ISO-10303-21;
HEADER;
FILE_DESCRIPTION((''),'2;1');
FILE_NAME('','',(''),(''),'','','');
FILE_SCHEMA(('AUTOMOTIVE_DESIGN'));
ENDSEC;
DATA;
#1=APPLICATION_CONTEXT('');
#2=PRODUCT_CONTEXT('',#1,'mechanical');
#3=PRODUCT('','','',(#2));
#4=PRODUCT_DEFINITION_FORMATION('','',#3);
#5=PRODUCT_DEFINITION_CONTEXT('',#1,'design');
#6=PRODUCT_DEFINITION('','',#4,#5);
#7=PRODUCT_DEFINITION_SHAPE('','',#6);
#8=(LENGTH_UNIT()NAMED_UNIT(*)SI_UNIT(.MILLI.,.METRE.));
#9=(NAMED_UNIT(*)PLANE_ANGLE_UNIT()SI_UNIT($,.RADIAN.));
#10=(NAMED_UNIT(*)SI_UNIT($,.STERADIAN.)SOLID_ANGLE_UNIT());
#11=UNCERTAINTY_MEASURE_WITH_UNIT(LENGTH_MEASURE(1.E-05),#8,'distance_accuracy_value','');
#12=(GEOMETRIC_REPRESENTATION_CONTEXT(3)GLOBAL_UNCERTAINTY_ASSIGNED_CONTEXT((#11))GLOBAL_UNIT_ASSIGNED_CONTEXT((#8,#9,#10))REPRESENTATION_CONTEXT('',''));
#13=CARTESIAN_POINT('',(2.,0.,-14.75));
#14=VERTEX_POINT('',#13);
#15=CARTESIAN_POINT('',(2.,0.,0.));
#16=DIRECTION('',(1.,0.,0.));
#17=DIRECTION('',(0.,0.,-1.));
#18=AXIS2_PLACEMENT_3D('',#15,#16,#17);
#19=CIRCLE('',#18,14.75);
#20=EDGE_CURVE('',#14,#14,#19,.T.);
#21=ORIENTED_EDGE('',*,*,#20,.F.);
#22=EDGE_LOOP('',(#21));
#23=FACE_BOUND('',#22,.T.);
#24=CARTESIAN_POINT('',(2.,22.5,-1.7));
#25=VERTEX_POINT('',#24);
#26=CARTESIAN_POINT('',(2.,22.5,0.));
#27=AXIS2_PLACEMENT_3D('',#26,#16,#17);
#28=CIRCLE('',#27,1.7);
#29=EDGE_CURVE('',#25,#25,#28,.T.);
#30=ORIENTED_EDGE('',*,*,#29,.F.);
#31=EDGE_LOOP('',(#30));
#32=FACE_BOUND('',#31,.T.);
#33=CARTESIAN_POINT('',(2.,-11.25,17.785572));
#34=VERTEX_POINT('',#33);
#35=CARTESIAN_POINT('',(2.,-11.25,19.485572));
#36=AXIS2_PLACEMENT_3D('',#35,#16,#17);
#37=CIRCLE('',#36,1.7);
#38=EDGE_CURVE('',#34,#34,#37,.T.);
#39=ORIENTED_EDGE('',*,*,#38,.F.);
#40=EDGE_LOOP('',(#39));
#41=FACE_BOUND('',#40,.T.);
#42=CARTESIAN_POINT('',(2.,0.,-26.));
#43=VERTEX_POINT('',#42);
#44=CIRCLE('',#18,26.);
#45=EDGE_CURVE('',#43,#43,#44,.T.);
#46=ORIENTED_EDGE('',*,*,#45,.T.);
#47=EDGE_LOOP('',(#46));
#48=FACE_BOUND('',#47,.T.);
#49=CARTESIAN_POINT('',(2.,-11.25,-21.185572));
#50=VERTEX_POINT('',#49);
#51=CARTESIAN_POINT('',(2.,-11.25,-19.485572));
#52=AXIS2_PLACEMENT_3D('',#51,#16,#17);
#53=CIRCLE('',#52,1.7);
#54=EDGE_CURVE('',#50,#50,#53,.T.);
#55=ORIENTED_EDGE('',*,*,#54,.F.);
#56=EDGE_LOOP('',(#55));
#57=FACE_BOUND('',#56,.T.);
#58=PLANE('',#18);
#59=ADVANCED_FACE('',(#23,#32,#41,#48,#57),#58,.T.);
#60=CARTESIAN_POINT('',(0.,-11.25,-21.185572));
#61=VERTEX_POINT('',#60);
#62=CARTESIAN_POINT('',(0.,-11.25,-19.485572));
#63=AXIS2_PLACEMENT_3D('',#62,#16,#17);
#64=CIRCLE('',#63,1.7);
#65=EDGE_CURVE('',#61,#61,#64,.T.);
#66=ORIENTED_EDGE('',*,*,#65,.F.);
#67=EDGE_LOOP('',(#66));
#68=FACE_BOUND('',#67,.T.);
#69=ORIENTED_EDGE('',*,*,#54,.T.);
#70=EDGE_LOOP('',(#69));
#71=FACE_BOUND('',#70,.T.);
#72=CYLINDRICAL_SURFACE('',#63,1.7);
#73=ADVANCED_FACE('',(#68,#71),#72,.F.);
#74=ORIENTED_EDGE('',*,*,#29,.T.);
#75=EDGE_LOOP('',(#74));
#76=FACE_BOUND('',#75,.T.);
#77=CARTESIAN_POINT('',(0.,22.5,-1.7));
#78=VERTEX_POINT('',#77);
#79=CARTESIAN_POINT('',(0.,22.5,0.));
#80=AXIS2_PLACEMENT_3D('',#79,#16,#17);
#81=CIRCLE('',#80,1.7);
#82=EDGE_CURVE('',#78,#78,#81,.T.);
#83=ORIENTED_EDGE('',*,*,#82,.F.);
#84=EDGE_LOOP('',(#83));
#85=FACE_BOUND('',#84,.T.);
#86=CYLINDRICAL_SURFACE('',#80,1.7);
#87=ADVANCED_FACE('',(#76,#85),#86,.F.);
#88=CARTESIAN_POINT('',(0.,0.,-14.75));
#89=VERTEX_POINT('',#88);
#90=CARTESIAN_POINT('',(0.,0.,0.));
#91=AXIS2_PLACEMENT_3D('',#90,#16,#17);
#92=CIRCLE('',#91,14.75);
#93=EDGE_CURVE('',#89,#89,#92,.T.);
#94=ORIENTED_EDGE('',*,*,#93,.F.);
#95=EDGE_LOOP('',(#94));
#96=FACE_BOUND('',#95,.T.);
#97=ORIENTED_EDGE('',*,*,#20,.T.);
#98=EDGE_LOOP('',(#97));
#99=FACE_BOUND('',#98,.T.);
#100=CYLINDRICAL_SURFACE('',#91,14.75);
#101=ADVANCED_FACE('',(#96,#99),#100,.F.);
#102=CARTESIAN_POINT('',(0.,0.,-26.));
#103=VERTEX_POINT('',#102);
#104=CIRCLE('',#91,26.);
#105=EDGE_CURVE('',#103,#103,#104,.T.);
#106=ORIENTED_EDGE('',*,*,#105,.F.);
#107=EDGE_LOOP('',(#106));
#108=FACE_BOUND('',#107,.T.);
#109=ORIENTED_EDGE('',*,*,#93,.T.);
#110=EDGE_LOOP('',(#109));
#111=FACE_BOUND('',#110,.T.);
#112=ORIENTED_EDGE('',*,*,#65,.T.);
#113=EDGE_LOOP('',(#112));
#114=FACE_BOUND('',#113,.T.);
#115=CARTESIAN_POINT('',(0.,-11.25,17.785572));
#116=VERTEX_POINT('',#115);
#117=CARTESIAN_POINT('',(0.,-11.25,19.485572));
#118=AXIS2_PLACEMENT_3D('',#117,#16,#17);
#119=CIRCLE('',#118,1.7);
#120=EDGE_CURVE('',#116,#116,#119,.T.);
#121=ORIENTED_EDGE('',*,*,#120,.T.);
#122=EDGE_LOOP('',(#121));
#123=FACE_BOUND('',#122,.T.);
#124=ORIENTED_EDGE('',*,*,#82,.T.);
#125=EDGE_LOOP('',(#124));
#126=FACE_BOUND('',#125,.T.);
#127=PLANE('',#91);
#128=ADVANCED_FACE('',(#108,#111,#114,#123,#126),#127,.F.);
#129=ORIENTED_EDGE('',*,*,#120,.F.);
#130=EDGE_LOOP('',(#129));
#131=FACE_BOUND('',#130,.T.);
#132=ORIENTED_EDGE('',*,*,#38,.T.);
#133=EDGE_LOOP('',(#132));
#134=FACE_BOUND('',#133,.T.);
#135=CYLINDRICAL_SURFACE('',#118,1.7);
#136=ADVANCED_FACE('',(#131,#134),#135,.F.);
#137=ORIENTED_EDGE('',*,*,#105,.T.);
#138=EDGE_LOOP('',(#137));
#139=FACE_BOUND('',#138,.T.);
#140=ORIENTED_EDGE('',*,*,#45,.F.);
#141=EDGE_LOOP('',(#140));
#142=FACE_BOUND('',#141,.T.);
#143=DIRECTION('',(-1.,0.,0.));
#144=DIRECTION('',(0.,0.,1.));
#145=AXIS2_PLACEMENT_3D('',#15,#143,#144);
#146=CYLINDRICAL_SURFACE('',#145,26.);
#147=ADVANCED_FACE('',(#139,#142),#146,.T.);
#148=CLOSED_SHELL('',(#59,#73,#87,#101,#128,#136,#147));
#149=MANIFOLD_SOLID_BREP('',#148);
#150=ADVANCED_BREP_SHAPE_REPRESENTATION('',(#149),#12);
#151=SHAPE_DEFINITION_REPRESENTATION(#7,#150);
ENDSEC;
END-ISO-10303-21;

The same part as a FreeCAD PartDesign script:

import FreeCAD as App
import Part
import Sketcher
from FreeCAD import Vector
Q = App.Units.Quantity

doc = App.newDocument("Part")
body = doc.addObject("PartDesign::Body", "Body")

# Sketch on YZ plane
sketch1 = doc.addObject("Sketcher::SketchObject", "Sketch")
body.addObject(sketch1)
sketch1.AttachmentSupport = (doc.YZ_Plane, [""])
sketch1.MapMode = "FlatFace"
sketch1.addGeometry(Part.Circle(Vector(0, 0, 0), Vector(0, 0, 1), 26), False)
sketch1.addConstraint([
    Sketcher.Constraint("Coincident", 0, 3, -1, 1),
    Sketcher.Constraint("Diameter", 0, Q("52 mm")),
])
pad1 = doc.addObject("PartDesign::Pad", "Pad")
body.addObject(pad1)
pad1.Profile = sketch1
pad1.Length = 2

# Sketch on YZ plane
sketch2 = doc.addObject("Sketcher::SketchObject", "Sketch001")
body.addObject(sketch2)
sketch2.AttachmentSupport = (doc.YZ_Plane, [""])
sketch2.MapMode = "FlatFace"
sketch2.AttachmentOffset = App.Placement(Vector(0, 0, 2), App.Rotation())
sketch2.addGeometry(Part.Circle(Vector(0, 0, 0), Vector(0, 0, 1), 14.75), False)
sketch2.addConstraint([
    Sketcher.Constraint("Coincident", 0, 3, -1, 1),
    Sketcher.Constraint("Diameter", 0, Q("29.5 mm")),
])
pocket1 = doc.addObject("PartDesign::Pocket", "Pocket")
body.addObject(pocket1)
pocket1.Profile = sketch2
pocket1.Type = "ThroughAll"

# Sketch on YZ plane
sketch3 = doc.addObject("Sketcher::SketchObject", "Sketch002")
body.addObject(sketch3)
sketch3.AttachmentSupport = (doc.YZ_Plane, [""])
sketch3.MapMode = "FlatFace"
sketch3.AttachmentOffset = App.Placement(Vector(0, 0, 2), App.Rotation())
sketch3.addGeometry([
    Part.Circle(Vector(22.5, 0, 0), Vector(0, 0, 1), 1.7),
    Part.Circle(Vector(-11.25, -19.485572, 0), Vector(0, 0, 1), 1.7),
    Part.Circle(Vector(-11.25, 19.485572, 0), Vector(0, 0, 1), 1.7),
], False)
sketch3.addConstraint([
    Sketcher.Constraint("Equal", 0, 1),
    Sketcher.Constraint("Equal", 1, 2),
    Sketcher.Constraint("Symmetric", 1, 3, 2, 3, -1),
    Sketcher.Constraint("PointOnObject", 0, 3, -1),
    Sketcher.Constraint("Diameter", 0, Q("3.4 mm")),
    Sketcher.Constraint("DistanceX", -1, 1, 0, 3, Q("22.5 mm")),
    Sketcher.Constraint("DistanceX", 1, 3, -1, 1, Q("11.25 mm")),
    Sketcher.Constraint("DistanceY", 1, 3, -1, 1, Q("19.485572 mm")),
])
pocket2 = doc.addObject("PartDesign::Pocket", "Pocket001")
body.addObject(pocket2)
pocket2.Profile = sketch3
pocket2.Type = "ThroughAll"

doc.recompute()
